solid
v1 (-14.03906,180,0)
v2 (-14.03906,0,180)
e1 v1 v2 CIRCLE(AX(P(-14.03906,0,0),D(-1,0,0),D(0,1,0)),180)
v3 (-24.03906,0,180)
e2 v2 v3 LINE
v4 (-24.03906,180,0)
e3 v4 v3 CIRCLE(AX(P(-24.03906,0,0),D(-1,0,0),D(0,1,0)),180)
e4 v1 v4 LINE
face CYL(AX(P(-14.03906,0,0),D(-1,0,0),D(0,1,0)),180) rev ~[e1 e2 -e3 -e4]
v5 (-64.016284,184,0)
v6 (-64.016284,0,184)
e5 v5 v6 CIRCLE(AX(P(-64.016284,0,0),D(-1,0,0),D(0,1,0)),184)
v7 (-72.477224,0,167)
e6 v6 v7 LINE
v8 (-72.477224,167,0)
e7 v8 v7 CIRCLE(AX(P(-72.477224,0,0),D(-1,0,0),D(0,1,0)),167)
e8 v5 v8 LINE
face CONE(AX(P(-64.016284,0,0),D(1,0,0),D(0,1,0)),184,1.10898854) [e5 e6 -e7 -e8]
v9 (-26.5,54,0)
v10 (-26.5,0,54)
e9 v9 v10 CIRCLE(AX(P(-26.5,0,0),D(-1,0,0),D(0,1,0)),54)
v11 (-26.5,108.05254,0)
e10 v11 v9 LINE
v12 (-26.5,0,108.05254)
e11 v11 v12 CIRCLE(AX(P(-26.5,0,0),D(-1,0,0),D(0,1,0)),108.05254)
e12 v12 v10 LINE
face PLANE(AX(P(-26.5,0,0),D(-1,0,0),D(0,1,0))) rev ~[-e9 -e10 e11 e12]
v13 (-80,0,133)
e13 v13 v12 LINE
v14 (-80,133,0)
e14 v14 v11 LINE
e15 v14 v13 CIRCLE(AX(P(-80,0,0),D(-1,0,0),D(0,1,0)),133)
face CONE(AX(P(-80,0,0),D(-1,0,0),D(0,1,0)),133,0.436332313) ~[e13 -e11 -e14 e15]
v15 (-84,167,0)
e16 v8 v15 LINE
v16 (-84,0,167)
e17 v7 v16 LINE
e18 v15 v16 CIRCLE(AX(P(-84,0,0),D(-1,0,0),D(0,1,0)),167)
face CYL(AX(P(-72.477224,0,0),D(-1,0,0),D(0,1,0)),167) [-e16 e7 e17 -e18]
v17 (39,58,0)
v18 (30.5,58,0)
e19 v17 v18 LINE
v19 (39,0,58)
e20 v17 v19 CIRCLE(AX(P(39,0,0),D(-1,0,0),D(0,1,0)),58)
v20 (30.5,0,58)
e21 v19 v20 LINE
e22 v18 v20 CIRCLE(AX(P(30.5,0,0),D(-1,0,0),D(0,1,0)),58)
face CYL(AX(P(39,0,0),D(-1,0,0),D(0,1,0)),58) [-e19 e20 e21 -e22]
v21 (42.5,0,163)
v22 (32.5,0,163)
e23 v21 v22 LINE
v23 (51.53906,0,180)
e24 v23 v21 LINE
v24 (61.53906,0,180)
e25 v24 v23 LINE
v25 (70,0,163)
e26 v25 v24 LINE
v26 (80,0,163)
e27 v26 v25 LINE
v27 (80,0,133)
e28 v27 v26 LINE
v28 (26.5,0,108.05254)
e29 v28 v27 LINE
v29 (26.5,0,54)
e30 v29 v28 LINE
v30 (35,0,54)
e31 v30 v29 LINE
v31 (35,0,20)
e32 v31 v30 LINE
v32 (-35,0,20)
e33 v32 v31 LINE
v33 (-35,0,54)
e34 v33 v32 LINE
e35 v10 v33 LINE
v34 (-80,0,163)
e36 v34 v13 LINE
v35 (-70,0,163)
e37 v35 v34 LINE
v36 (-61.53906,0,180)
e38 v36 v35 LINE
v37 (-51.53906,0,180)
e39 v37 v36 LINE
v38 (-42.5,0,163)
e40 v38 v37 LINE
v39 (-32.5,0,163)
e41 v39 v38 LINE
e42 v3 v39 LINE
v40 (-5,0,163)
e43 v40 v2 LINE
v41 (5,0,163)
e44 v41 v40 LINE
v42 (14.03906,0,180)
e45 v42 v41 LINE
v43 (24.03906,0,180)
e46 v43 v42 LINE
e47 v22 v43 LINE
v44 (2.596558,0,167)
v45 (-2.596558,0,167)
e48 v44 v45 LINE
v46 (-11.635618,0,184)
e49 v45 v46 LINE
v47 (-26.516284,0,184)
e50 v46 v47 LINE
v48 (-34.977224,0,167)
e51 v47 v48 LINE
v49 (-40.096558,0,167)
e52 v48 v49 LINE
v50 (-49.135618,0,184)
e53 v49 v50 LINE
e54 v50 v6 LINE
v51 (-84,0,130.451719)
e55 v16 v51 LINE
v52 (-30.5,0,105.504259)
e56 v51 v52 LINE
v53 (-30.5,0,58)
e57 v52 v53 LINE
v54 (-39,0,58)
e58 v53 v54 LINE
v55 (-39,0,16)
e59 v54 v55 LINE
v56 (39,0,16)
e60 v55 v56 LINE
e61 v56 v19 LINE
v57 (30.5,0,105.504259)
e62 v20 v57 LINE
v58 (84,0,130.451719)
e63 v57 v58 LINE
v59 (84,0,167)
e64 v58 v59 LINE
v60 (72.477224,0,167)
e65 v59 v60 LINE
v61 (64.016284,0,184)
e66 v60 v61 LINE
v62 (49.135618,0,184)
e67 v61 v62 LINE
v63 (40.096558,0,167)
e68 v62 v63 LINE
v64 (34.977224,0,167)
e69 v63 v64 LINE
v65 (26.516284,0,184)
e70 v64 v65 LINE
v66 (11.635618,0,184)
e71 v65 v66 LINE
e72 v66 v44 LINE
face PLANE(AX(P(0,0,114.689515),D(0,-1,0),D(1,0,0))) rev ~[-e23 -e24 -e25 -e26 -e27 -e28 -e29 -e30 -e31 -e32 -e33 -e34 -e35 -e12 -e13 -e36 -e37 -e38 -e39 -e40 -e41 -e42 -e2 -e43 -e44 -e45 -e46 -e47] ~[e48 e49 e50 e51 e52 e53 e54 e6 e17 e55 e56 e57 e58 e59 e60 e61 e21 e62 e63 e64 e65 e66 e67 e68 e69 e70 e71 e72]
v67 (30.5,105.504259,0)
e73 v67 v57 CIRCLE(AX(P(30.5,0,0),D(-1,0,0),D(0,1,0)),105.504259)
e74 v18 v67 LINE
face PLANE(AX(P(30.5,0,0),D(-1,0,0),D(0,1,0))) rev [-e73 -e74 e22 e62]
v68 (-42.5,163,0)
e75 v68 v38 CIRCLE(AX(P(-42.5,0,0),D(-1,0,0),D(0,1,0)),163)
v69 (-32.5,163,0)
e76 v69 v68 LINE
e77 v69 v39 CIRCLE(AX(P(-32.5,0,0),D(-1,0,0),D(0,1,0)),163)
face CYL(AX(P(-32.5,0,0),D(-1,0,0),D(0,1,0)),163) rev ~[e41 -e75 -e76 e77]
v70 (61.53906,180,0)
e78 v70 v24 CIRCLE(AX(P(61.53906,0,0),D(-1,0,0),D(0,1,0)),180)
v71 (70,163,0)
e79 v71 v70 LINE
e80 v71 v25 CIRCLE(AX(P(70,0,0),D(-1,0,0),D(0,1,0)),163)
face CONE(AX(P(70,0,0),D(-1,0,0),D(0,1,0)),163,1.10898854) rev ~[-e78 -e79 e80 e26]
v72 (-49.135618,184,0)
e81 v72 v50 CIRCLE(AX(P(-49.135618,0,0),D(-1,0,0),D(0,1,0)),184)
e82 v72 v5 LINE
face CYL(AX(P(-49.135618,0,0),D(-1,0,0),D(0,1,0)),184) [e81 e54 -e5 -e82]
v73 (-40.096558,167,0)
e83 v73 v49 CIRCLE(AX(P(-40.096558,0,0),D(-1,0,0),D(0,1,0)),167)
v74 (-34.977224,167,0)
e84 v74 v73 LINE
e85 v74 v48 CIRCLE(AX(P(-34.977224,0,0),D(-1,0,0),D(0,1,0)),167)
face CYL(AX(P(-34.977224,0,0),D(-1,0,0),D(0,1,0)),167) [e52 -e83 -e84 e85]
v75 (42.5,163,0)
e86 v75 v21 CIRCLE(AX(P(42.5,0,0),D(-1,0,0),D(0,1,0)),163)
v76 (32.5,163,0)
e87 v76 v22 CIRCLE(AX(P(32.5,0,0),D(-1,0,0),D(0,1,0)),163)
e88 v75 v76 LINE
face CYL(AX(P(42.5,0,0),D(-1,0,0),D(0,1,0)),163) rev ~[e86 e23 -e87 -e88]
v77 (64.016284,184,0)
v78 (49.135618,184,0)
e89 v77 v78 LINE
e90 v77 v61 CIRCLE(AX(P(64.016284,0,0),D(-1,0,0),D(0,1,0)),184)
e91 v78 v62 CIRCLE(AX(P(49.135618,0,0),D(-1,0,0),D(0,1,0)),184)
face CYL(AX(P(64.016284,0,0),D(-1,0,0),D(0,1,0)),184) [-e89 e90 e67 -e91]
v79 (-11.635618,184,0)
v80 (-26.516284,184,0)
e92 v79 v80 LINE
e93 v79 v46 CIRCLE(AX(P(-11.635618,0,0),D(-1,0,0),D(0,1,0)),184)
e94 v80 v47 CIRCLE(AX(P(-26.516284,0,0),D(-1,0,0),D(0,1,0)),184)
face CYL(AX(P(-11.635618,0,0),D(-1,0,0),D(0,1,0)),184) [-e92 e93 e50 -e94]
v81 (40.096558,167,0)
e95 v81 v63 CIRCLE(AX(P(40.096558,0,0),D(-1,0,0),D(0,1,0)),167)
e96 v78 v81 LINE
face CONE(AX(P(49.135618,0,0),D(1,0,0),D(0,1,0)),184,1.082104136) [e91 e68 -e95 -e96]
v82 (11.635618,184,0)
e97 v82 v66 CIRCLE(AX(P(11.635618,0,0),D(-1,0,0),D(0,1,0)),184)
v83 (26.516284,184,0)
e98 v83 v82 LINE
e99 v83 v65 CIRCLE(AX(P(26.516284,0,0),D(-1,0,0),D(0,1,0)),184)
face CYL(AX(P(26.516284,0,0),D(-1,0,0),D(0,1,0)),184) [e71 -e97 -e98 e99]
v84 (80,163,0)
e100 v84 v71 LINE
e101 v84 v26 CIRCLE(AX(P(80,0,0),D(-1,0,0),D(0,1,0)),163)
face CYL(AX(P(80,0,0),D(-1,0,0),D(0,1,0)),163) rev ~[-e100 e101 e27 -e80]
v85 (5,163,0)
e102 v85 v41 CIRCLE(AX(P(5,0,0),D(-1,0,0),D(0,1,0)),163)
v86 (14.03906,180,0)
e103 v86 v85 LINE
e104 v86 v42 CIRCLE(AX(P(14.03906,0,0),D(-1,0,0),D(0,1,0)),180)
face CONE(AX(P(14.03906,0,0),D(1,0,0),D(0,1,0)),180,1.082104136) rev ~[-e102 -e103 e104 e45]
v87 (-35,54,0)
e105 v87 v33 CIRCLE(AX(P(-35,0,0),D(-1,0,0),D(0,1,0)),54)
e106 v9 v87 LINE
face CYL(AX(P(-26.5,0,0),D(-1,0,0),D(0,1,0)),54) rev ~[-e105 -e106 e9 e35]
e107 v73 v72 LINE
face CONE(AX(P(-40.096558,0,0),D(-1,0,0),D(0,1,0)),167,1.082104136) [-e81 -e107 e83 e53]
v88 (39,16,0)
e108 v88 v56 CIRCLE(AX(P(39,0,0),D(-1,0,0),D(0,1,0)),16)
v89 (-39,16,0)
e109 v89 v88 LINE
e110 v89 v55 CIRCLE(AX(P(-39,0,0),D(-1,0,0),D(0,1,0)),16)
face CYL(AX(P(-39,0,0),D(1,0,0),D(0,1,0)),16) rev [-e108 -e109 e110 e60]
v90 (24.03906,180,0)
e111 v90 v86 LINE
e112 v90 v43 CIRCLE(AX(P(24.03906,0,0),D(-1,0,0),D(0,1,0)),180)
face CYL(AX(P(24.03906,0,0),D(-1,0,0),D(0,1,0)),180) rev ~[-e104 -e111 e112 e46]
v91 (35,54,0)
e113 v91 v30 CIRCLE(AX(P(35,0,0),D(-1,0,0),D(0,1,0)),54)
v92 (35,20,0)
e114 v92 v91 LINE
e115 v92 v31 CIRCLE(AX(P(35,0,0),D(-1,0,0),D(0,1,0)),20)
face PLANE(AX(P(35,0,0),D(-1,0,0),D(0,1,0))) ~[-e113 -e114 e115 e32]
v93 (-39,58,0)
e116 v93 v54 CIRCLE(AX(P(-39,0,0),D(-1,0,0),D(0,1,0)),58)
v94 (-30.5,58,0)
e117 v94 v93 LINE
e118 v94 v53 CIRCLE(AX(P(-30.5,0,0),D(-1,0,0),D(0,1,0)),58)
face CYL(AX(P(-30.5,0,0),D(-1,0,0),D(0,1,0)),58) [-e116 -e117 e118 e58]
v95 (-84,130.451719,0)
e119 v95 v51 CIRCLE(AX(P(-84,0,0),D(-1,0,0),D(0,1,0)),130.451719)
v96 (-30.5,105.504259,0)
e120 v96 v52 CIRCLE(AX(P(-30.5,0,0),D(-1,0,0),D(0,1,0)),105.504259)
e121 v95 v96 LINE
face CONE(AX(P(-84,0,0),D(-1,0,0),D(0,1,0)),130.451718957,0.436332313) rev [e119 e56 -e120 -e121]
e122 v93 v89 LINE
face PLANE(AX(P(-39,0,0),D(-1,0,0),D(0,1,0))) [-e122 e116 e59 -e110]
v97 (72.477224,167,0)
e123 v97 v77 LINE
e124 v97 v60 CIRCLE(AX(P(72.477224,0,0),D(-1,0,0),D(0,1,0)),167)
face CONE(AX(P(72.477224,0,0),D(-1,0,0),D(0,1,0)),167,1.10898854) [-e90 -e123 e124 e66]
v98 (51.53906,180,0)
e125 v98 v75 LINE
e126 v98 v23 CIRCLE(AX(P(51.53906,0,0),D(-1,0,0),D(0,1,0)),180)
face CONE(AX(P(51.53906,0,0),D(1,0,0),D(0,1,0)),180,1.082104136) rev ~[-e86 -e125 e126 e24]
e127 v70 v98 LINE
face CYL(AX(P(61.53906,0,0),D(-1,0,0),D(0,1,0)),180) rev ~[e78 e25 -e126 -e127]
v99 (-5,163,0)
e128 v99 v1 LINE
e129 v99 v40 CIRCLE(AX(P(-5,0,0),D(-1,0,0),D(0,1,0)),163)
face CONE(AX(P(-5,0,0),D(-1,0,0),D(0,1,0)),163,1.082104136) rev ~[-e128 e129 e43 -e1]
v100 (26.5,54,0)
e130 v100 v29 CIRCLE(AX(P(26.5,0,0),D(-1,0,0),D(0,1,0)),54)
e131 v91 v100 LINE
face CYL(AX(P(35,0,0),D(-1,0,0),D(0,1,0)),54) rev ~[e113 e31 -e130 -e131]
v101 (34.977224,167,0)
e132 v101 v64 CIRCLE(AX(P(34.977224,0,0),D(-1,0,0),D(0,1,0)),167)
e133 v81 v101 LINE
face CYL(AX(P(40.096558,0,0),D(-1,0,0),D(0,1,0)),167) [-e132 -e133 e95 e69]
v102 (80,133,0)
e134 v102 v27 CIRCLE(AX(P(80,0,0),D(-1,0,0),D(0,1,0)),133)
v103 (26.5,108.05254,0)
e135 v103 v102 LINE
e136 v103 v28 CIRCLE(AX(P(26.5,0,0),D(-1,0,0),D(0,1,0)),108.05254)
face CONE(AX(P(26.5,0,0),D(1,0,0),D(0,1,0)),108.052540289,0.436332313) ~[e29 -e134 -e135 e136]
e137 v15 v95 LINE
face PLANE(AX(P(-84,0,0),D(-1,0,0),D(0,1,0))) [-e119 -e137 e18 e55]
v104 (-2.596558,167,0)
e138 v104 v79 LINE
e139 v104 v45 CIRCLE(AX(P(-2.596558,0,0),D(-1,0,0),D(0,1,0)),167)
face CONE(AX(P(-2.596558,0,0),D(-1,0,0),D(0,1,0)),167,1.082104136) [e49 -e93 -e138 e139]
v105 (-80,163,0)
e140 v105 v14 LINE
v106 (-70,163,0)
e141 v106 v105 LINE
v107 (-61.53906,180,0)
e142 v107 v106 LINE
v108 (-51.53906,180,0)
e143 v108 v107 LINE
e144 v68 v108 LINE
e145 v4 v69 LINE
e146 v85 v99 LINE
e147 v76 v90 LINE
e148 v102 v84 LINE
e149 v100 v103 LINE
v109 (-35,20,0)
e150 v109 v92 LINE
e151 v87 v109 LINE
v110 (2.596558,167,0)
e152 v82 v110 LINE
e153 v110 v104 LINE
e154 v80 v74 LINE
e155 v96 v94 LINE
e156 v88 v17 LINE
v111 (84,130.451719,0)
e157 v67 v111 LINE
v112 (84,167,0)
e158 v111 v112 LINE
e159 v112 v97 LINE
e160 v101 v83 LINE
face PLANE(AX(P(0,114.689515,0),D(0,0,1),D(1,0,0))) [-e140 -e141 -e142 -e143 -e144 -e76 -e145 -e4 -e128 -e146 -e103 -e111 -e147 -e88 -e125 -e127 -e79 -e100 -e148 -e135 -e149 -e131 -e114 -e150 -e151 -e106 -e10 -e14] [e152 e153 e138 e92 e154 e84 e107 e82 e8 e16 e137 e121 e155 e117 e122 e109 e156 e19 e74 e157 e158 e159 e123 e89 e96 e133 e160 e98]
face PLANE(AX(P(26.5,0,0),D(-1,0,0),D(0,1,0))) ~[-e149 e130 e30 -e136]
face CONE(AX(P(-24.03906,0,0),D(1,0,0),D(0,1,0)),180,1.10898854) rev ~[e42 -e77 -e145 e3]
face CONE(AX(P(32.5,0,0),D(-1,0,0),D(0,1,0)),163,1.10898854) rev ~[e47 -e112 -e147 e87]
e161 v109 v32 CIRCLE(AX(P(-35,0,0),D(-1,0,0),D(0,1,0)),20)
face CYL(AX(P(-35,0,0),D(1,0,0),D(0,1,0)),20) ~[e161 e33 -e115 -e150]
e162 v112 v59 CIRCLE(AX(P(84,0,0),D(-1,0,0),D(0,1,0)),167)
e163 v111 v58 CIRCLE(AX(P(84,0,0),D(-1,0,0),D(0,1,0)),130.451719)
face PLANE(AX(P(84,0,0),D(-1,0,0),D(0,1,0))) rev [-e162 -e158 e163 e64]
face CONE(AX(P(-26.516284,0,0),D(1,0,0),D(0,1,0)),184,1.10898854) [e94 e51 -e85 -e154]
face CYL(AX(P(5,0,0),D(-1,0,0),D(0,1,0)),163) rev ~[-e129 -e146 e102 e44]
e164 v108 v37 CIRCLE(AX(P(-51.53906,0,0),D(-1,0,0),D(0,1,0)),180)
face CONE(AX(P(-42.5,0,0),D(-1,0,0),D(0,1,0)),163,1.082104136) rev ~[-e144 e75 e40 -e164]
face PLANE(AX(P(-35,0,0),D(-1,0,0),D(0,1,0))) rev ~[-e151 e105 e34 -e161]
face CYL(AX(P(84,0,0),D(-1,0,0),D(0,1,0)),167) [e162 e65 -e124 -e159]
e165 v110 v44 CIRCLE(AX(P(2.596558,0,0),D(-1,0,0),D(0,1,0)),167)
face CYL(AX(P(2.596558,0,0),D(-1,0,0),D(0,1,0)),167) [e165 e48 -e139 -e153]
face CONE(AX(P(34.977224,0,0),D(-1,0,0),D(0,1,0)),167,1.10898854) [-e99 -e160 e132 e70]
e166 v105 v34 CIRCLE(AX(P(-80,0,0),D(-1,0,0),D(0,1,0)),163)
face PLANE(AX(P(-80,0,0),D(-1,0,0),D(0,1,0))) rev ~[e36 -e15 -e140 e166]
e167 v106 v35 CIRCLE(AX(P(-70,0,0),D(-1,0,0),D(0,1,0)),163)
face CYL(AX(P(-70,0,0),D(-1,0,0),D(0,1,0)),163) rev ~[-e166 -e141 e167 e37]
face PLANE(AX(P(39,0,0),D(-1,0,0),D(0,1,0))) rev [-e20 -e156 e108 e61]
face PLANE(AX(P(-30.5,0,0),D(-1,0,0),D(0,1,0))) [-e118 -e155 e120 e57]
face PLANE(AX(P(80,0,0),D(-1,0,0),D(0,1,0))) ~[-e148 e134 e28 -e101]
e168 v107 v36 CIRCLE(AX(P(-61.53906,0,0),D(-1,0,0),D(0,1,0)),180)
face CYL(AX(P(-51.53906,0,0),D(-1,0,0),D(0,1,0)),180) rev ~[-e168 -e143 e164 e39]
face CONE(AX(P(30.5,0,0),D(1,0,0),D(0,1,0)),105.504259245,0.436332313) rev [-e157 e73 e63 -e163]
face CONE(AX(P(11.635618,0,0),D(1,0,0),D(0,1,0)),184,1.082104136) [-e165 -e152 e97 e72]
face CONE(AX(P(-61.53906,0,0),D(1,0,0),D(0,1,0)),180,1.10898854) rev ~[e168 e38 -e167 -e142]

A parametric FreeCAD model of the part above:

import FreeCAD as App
import Part
import Sketcher
Q = App.Units.Quantity


def add_polygon(sketch, points):
    """Adds a closed chain of lines whose ends are joined by coincident constraints."""
    first, n = sketch.GeometryCount, len(points)
    for a, b in zip(points, points[1:] + points[:1]):
        sketch.addGeometry(Part.LineSegment(App.Vector(*a, 0), App.Vector(*b, 0)), False)
    for i in range(n):
        sketch.addConstraint(Sketcher.Constraint("Coincident", first + i, 2, first + (i + 1) % n, 1))

doc = App.newDocument("Part")
body = doc.addObject("PartDesign::Body", "Body")

# Sketch on XY plane
sketch1 = body.newObject("Sketcher::SketchObject", "Sketch")
sketch1.AttachmentSupport = (doc.getObject("XY_Plane"), [""])
sketch1.MapMode = "FlatFace"
add_polygon(sketch1, [(-39, 16), (39, 16), (39, 58), (30, 58), (30, 106), (84, 130), (84, 167), (72, 167), (64, 184), (49, 184), (40, 167), (35, 167), (27, 184), (12, 184), (3, 167), (-3, 167), (-12, 184), (-27, 184), (-35, 167), (-40, 167), (-49, 184), (-64, 184), (-72, 167), (-84, 167), (-84, 130), (-30, 106), (-30, 58), (-39, 58)])  # lines 0-27
add_polygon(sketch1, [(35, 20), (-35, 20), (-35, 54), (-26, 54), (-26, 108), (-80, 133), (-80, 163), (-70, 163), (-62, 180), (-52, 180), (-42, 163), (-32, 163), (-24, 180), (-14, 180), (-5, 163), (5, 163), (14, 180), (24, 180), (32, 163), (42, 163), (52, 180), (62, 180), (70, 163), (80, 163), (80, 133), (26, 108), (26, 54), (35, 54)])  # lines 28-55
sketch1.addConstraint([
    Sketcher.Constraint("Horizontal", 0),
    Sketcher.Constraint("Vertical", 1),
    Sketcher.Constraint("Horizontal", 2),
    Sketcher.Constraint("Vertical", 3),
    Sketcher.Constraint("Vertical", 5),
    Sketcher.Constraint("Horizontal", 6),
    Sketcher.Constraint("Horizontal", 8),
    Sketcher.Constraint("Horizontal", 10),
    Sketcher.Constraint("Horizontal", 12),
    Sketcher.Constraint("Horizontal", 14),
    Sketcher.Constraint("Horizontal", 16),
    Sketcher.Constraint("Horizontal", 18),
    Sketcher.Constraint("Horizontal", 20),
    Sketcher.Constraint("Horizontal", 22),
    Sketcher.Constraint("Vertical", 23),
    Sketcher.Constraint("Vertical", 25),
    Sketcher.Constraint("Horizontal", 26),
    Sketcher.Constraint("Vertical", 27),
    Sketcher.Constraint("Horizontal", 28),
    Sketcher.Constraint("Vertical", 29),
    Sketcher.Constraint("Horizontal", 30),
    Sketcher.Constraint("Vertical", 31),
    Sketcher.Constraint("Vertical", 33),
    Sketcher.Constraint("Horizontal", 34),
    Sketcher.Constraint("Horizontal", 36),
    Sketcher.Constraint("Horizontal", 38),
    Sketcher.Constraint("Horizontal", 40),
    Sketcher.Constraint("Horizontal", 42),
    Sketcher.Constraint("Horizontal", 44),
    Sketcher.Constraint("Horizontal", 46),
    Sketcher.Constraint("Horizontal", 48),
    Sketcher.Constraint("Horizontal", 50),
    Sketcher.Constraint("Vertical", 51),
    Sketcher.Constraint("Vertical", 53),
    Sketcher.Constraint("Horizontal", 54),
    Sketcher.Constraint("Vertical", 55),
    Sketcher.Constraint("Symmetric", 12, 2, 15, 2, -2),
    Sketcher.Constraint("Symmetric", 10, 2, 17, 2, -2),
    Sketcher.Constraint("Symmetric", 8, 2, 19, 2, -2),
    Sketcher.Constraint("Symmetric", 6, 2, 21, 2, -2),
    Sketcher.Constraint("Symmetric", 4, 2, 23, 2, -2),
    Sketcher.Constraint("Symmetric", 3, 2, 24, 2, -2),
    Sketcher.Constraint("Symmetric", 1, 2, 26, 2, -2),
    Sketcher.Constraint("Symmetric", 40, 2, 43, 2, -2),
    Sketcher.Constraint("Symmetric", 38, 2, 45, 2, -2),
    Sketcher.Constraint("Symmetric", 36, 2, 47, 2, -2),
    Sketcher.Constraint("Symmetric", 34, 2, 49, 2, -2),
    Sketcher.Constraint("Symmetric", 32, 2, 51, 2, -2),
    Sketcher.Constraint("Symmetric", 31, 2, 52, 2, -2),
    Sketcher.Constraint("Symmetric", 29, 2, 54, 2, -2),
    Sketcher.Constraint("Parallel", 7, 11),
    Sketcher.Constraint("Parallel", 9, 13),
    Sketcher.Constraint("Parallel", 15, 19),
    Sketcher.Constraint("Parallel", 17, 21),
    Sketcher.Constraint("Parallel", 24, 32),
    Sketcher.Constraint("Parallel", 21, 35),
    Sketcher.Constraint("Parallel", 19, 37),
    Sketcher.Constraint("Parallel", 35, 39),
    Sketcher.Constraint("Parallel", 37, 41),
    Sketcher.Constraint("Parallel", 13, 43),
    Sketcher.Constraint("Parallel", 11, 45),
    Sketcher.Constraint("Parallel", 43, 47),
    Sketcher.Constraint("Parallel", 45, 49),
    Sketcher.Constraint("Horizontal", 6, 2, 9, 2),
    Sketcher.Constraint("Horizontal", 8, 2, 11, 2),
    Sketcher.Constraint("Horizontal", 10, 2, 13, 2),
    Sketcher.Constraint("Horizontal", 34, 2, 37, 2),
    Sketcher.Constraint("Horizontal", 36, 2, 39, 2),
    Sketcher.Constraint("Horizontal", 38, 2, 41, 2),
    Sketcher.Constraint("Equal", 8, 12),
    Sketcher.Constraint("Equal", 12, 16),
    Sketcher.Constraint("Equal", 10, 18),
    Sketcher.Constraint("Equal", 26, 30),
    Sketcher.Constraint("Equal", 34, 36),
    Sketcher.Constraint("Equal", 36, 38),
    Sketcher.Constraint("Equal", 38, 40),
    Sketcher.Constraint("Equal", 40, 42),
    Sketcher.Constraint("Equal", 24, 32),
    Sketcher.Constraint("Equal", 21, 35),
    Sketcher.Constraint("DistanceX", 0, 1, 0, 2, 78.0),
    Sketcher.Constraint("DistanceX", 28, 2, 28, 1, 70.0),
    Sketcher.Constraint("DistanceX", 34, 1, 34, 2, 10.0),
    Sketcher.Constraint("DistanceY", 1, 1, 1, 2, 42.0),
    Sketcher.Constraint("DistanceY", 29, 1, 29, 2, 34.0),
    Sketcher.Constraint("DistanceY", 33, 1, 33, 2, 30.0),
    Sketcher.Constraint("Angle", 4, Q("25 deg")),
    Sketcher.Constraint("Angle", 9, Q("-118 deg")),
    Sketcher.Constraint("DistanceX", 2, 2, 2, 1, 8.5),
    Sketcher.Constraint("DistanceY", -1, 1, 0, 2, 16.0),
    Sketcher.Constraint("DistanceX", -1, 1, 4, 2, 84.0),
    Sketcher.Constraint("DistanceY", -1, 1, 5, 2, 167.0),
    Sketcher.Constraint("DistanceY", -1, 1, 7, 2, 184.0),
    Sketcher.Constraint("DistanceY", -1, 1, 28, 2, 20.0),
    Sketcher.Constraint("DistanceY", -1, 1, 32, 2, 133.0),
    Sketcher.Constraint("DistanceX", 10, 2, 6, 2, 37.5),
    Sketcher.Constraint("DistanceY", 3, 1, 3, 2, 47.504259),
    Sketcher.Constraint("DistanceX", 6, 2, 6, 1, 11.522776),
    Sketcher.Constraint("DistanceX", 8, 2, 8, 1, 14.880666),
])
revolution = body.newObject("PartDesign::Revolution", "Revolution")
revolution.Profile = sketch1
revolution.ReferenceAxis = (sketch1, ["H_Axis"])
revolution.Angle = 270
revolution.Reversed = True

doc.recompute()
